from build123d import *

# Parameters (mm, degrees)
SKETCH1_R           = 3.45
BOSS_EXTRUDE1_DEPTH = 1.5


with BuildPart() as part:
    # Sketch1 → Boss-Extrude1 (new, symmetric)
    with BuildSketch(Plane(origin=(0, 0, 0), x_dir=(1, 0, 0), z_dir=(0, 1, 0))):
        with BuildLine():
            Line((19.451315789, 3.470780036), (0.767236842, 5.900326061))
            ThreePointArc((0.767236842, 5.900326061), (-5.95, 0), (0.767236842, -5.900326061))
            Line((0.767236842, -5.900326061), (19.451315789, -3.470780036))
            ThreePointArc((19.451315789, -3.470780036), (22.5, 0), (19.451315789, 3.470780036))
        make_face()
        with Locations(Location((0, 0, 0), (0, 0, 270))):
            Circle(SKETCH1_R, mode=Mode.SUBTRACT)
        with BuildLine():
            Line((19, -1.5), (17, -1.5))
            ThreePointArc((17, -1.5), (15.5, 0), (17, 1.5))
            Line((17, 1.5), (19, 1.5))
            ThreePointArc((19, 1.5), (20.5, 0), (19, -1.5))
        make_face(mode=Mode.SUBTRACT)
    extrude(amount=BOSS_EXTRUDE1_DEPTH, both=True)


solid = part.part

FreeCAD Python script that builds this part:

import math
import FreeCAD as App
import Part
import Sketcher
from FreeCAD import Vector
Q = App.Units.Quantity

doc = App.newDocument("Part")
body = doc.addObject("PartDesign::Body", "Body")

# Sketch on XZ plane
sketch1 = doc.addObject("Sketcher::SketchObject", "Sketch")
body.addObject(sketch1)
sketch1.AttachmentSupport = (doc.XZ_Plane, [""])
sketch1.MapMode = "FlatFace"
sketch1.addGeometry([
    Part.LineSegment(Vector(19.5, -3.5, 0), Vector(0.8, -5.9, 0)),  # 0
    Part.ArcOfCircle(Part.Circle(Vector(0, 0, 0), Vector(0, 0, 1), 6), math.radians(83), math.radians(277)),  # 1
    Part.LineSegment(Vector(0.8, 5.9, 0), Vector(19.5, 3.5, 0)),  # 2
    Part.ArcOfCircle(Part.Circle(Vector(19, 0, 0), Vector(0, 0, 1), 3.5), math.radians(-83), math.radians(83)),  # 3
    Part.Circle(Vector(0, 0, 0), Vector(0, 0, 1), 3.5),  # 4
    Part.ArcOfCircle(Part.Circle(Vector(19, 0, 0), Vector(0, 0, 1), 1.5), math.radians(-90), math.radians(90)),  # 5
    Part.LineSegment(Vector(19, 1.5, 0), Vector(17, 1.5, 0)),  # 6
    Part.ArcOfCircle(Part.Circle(Vector(17, 0, 0), Vector(0, 0, 1), 1.5), math.radians(90), math.radians(270)),  # 7
    Part.LineSegment(Vector(17, -1.5, 0), Vector(19, -1.5, 0)),  # 8
], False)
sketch1.addConstraint([
    Sketcher.Constraint("Tangent", 0, 2, 1, 2),
    Sketcher.Constraint("Tangent", 1, 1, 2, 1),
    Sketcher.Constraint("Tangent", 2, 2, 3, 2),
    Sketcher.Constraint("Tangent", 3, 1, 0, 1),
    Sketcher.Constraint("Tangent", 5, 2, 6, 1),
    Sketcher.Constraint("Tangent", 6, 2, 7, 1),
    Sketcher.Constraint("Tangent", 7, 2, 8, 1),
    Sketcher.Constraint("Tangent", 8, 2, 5, 1),
    Sketcher.Constraint("Horizontal", 6),
    Sketcher.Constraint("Horizontal", 8),
    Sketcher.Constraint("Coincident", 1, 3, -1, 1),
    Sketcher.Constraint("Coincident", 4, 3, -1, 1),
    Sketcher.Constraint("Coincident", 5, 3, 3, 3),
    Sketcher.Constraint("PointOnObject", 3, 3, -1),
    Sketcher.Constraint("Diameter", 4, Q("6.9 mm")),
    Sketcher.Constraint("Radius", 3, Q("3.5 mm")),
    Sketcher.Constraint("Radius", 5, Q("1.5 mm")),
    Sketcher.Constraint("DistanceX", 6, 2, 6, 1, Q("2 mm")),
    Sketcher.Constraint("Radius", 1, Q("5.95 mm")),
    Sketcher.Constraint("DistanceX", -1, 1, 3, 3, Q("19 mm")),
])
pad1 = doc.addObject("PartDesign::Pad", "Pad")
body.addObject(pad1)
pad1.Profile = sketch1
pad1.Length = 3
pad1.Midplane = True

doc.recompute()
